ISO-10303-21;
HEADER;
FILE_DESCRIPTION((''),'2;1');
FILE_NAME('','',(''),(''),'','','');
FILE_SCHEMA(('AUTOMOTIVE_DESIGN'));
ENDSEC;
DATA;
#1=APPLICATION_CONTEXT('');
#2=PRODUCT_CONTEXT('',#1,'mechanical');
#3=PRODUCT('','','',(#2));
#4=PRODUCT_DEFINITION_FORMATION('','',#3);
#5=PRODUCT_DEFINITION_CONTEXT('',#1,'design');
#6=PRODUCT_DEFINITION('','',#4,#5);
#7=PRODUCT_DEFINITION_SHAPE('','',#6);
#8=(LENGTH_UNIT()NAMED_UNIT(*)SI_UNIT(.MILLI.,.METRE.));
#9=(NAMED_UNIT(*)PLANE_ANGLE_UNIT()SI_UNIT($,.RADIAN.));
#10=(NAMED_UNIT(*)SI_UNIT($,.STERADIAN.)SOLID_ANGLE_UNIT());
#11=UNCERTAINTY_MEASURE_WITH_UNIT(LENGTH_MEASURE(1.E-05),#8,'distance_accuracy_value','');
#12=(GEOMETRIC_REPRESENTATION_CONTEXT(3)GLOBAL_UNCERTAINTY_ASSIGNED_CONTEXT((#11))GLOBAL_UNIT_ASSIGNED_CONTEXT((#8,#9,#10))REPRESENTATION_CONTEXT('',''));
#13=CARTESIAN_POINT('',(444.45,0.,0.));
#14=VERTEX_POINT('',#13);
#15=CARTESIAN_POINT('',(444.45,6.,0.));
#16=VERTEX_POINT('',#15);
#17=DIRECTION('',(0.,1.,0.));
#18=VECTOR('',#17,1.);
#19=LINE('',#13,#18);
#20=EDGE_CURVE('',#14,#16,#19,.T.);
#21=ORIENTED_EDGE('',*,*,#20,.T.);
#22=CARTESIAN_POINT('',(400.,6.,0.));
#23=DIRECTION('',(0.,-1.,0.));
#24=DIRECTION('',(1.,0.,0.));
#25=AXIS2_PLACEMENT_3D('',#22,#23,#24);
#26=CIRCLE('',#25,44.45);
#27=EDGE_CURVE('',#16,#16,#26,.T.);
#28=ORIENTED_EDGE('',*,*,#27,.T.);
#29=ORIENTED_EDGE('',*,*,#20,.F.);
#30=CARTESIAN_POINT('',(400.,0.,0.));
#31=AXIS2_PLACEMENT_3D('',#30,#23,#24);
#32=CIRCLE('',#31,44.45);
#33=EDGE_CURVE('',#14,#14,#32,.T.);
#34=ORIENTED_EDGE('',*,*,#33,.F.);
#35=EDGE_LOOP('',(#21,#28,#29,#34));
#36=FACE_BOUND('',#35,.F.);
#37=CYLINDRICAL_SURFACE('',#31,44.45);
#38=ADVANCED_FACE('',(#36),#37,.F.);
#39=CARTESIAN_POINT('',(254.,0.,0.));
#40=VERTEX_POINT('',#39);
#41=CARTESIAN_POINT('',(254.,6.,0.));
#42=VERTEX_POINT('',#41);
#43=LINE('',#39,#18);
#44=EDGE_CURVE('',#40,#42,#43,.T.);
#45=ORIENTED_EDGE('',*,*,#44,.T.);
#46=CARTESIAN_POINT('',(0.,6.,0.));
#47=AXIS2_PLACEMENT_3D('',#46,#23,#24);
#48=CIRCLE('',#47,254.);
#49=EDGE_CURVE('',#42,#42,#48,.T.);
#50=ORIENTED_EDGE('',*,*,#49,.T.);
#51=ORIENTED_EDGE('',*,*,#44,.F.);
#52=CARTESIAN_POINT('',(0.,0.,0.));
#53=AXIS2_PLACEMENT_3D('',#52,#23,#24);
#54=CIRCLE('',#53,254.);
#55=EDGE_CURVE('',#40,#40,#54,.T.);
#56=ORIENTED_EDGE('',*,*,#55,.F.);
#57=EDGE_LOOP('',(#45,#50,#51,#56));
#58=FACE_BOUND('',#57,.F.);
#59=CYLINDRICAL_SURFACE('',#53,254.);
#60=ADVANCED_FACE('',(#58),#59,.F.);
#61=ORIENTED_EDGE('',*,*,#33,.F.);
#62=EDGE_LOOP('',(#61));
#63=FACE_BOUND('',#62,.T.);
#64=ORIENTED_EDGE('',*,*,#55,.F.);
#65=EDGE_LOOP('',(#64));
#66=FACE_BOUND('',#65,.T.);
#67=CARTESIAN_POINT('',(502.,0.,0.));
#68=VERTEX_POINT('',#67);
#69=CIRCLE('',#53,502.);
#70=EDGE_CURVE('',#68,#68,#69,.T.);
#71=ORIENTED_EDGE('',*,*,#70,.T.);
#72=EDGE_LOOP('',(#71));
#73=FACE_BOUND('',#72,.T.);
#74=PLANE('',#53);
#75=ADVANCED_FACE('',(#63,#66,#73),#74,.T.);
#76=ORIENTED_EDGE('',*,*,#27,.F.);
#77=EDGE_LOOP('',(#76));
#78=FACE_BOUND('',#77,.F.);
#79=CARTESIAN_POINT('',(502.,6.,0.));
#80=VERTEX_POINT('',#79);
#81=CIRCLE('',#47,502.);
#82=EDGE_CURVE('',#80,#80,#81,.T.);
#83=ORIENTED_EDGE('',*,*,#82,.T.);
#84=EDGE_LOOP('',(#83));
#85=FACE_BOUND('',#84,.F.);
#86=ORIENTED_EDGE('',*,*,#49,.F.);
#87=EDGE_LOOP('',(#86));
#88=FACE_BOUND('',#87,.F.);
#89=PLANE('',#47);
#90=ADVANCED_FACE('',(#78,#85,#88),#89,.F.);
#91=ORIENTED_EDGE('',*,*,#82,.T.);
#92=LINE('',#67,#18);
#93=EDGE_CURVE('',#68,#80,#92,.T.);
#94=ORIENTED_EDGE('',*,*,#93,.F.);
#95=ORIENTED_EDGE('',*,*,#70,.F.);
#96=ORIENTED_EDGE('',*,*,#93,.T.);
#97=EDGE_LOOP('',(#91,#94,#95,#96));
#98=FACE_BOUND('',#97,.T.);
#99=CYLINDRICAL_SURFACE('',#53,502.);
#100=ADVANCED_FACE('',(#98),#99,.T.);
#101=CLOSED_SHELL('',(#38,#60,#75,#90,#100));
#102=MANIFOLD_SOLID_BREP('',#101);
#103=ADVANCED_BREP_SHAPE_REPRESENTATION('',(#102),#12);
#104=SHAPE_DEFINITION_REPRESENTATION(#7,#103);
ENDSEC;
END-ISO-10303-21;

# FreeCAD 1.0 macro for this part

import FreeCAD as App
import Part
import Sketcher
Q = App.Units.Quantity

doc = App.newDocument("Part")
body = doc.addObject("PartDesign::Body", "Body")

# Sketch on XZ plane
sketch1 = body.newObject("Sketcher::SketchObject", "Sketch")
sketch1.AttachmentSupport = (doc.getObject("XZ_Plane"), [""])
sketch1.MapMode = "FlatFace"
sketch1.addGeometry([
    Part.Circle(App.Vector(0, 0, 0), App.Vector(0, 0, 1), 502),
    Part.Circle(App.Vector(0, 0, 0), App.Vector(0, 0, 1), 254),
    Part.Circle(App.Vector(400, 0, 0), App.Vector(0, 0, 1), 44),
], False)
sketch1.addConstraint([
    Sketcher.Constraint("Coincident", 0, 3, -1, 1),
    Sketcher.Constraint("Coincident", 1, 3, -1, 1),
    Sketcher.Constraint("PointOnObject", 2, 3, -1),
    Sketcher.Constraint("Diameter", 0, Q("1004 mm")),
    Sketcher.Constraint("Diameter", 1, Q("508 mm")),
    Sketcher.Constraint("Diameter", 2, Q("88.9 mm")),
    Sketcher.Constraint("DistanceX", -1, 1, 2, 3, Q("400 mm")),
])
pad1 = body.newObject("PartDesign::Pad", "Pad")
pad1.Profile = sketch1
pad1.Length = 6
pad1.Reversed = True

doc.recompute()
